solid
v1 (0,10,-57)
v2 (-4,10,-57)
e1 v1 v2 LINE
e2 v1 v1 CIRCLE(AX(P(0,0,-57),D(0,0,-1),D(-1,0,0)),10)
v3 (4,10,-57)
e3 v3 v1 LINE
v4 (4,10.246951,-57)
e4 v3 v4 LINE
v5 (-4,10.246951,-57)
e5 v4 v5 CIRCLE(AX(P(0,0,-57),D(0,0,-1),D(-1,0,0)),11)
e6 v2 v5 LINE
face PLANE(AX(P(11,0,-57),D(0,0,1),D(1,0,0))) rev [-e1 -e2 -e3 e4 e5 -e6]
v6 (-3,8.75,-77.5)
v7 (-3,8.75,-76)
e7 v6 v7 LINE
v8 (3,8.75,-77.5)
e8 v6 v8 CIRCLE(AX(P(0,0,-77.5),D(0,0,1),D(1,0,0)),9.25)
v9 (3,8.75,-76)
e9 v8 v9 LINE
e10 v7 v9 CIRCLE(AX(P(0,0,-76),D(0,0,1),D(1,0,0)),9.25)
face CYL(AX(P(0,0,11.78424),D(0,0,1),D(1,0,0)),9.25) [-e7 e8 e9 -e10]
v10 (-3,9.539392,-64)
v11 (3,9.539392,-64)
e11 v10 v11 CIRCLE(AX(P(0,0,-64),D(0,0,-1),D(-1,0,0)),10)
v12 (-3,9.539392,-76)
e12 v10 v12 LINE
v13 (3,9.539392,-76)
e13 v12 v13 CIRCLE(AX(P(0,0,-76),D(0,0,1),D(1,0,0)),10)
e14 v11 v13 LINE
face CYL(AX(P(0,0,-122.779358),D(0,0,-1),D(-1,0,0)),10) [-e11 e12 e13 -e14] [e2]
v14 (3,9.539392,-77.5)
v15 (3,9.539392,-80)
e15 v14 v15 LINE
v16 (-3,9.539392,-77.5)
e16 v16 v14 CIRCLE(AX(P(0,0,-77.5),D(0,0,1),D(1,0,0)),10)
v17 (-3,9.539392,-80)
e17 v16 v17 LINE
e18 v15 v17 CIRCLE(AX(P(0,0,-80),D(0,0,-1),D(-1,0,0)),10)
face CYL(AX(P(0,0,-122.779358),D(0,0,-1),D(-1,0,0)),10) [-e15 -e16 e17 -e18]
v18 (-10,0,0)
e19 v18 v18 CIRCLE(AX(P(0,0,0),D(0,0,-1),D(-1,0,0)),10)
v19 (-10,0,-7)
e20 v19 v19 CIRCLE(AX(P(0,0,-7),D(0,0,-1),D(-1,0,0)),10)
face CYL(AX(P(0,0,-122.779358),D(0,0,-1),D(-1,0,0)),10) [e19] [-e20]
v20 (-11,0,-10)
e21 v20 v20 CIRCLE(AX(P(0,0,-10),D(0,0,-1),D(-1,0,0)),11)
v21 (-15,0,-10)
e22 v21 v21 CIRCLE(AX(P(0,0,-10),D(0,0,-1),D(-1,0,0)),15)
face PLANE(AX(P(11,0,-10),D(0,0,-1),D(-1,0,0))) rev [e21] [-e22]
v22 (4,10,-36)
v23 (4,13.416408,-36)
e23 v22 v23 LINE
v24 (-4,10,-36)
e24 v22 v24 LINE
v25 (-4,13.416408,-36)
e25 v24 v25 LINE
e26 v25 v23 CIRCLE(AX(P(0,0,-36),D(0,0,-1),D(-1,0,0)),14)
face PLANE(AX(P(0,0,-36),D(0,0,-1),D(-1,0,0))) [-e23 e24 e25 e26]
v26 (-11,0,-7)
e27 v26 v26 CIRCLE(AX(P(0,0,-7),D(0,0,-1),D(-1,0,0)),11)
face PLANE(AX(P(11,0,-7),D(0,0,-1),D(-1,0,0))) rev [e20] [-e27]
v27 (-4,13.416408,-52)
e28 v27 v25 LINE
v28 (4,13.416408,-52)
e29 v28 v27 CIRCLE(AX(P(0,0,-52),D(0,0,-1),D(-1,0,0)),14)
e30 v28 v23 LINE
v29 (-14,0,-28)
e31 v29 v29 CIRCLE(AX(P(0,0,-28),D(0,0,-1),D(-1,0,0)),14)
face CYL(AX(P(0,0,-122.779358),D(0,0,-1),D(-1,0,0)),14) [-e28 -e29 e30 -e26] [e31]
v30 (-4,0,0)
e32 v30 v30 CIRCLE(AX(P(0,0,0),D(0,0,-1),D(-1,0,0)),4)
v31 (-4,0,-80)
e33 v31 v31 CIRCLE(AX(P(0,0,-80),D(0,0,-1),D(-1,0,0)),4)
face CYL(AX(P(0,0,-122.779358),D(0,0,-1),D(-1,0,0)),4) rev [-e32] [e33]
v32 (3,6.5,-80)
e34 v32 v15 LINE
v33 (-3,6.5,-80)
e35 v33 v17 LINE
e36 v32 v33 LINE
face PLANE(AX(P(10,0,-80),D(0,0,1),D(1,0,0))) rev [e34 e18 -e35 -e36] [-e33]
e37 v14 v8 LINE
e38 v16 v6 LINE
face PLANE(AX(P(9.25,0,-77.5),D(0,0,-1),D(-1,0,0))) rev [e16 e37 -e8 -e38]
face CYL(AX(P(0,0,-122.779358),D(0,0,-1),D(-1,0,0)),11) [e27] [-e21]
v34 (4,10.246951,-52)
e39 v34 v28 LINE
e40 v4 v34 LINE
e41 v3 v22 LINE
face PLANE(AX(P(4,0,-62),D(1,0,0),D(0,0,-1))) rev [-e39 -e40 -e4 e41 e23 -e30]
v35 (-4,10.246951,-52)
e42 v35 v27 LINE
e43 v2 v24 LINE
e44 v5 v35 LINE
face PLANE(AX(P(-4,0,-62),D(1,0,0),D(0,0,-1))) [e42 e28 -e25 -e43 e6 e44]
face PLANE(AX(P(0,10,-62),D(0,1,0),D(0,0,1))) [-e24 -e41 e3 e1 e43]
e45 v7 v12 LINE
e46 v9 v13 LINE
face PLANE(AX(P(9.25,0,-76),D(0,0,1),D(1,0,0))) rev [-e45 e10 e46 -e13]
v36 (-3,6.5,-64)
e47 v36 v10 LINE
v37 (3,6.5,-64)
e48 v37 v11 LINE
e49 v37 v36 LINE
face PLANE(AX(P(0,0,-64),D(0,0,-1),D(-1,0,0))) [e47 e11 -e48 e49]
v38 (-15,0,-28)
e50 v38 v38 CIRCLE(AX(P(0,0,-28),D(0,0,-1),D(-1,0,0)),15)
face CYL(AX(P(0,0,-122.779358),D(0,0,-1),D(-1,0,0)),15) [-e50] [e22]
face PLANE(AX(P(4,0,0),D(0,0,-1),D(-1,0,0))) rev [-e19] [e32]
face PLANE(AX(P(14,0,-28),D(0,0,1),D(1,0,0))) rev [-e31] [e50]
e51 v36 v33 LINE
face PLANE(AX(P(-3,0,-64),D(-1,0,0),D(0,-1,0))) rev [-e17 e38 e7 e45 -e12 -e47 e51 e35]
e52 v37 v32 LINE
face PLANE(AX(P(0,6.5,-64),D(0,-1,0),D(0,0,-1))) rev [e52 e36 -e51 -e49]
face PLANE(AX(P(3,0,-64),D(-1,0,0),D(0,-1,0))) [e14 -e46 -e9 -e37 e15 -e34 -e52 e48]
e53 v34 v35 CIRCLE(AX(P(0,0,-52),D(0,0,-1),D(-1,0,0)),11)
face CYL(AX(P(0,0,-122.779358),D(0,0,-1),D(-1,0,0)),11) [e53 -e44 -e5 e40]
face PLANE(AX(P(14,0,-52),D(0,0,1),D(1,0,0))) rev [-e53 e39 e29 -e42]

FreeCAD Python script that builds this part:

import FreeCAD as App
import Part
import Sketcher

V = App.Vector

doc = App.newDocument("Part")
body = doc.addObject("PartDesign::Body", "Body")

# Sketch on XZ plane
sketch1 = doc.addObject("Sketcher::SketchObject", "Sketch")
body.addObject(sketch1)
sketch1.AttachmentSupport = (doc.XZ_Plane, [""])
sketch1.MapMode = "FlatFace"
sketch1.addGeometry(Part.LineSegment(V(4, 0, 0), V(10, 0, 0)), False)
sketch1.addGeometry(Part.LineSegment(V(10, 0, 0), V(10, -7, 0)), False)
sketch1.addGeometry(Part.LineSegment(V(10, -7, 0), V(11, -7, 0)), False)
sketch1.addGeometry(Part.LineSegment(V(11, -7, 0), V(11, -10, 0)), False)
sketch1.addGeometry(Part.LineSegment(V(11, -10, 0), V(15, -10, 0)), False)
sketch1.addGeometry(Part.LineSegment(V(15, -10, 0), V(15, -28, 0)), False)
sketch1.addGeometry(Part.LineSegment(V(15, -28, 0), V(14, -28, 0)), False)
sketch1.addGeometry(Part.LineSegment(V(14, -28, 0), V(14, -52, 0)), False)
sketch1.addGeometry(Part.LineSegment(V(14, -52, 0), V(11, -52, 0)), False)
sketch1.addGeometry(Part.LineSegment(V(11, -52, 0), V(11, -57, 0)), False)
sketch1.addGeometry(Part.LineSegment(V(11, -57, 0), V(10, -57, 0)), False)
sketch1.addGeometry(Part.LineSegment(V(10, -57, 0), V(10, -80, 0)), False)
sketch1.addGeometry(Part.LineSegment(V(10, -80, 0), V(4, -80, 0)), False)
sketch1.addGeometry(Part.LineSegment(V(4, -80, 0), V(4, 0, 0)), False)
sketch1.addConstraint(Sketcher.Constraint("Coincident", 0, 2, 1, 1))
sketch1.addConstraint(Sketcher.Constraint("Coincident", 1, 2, 2, 1))
sketch1.addConstraint(Sketcher.Constraint("Coincident", 2, 2, 3, 1))
sketch1.addConstraint(Sketcher.Constraint("Coincident", 3, 2, 4, 1))
sketch1.addConstraint(Sketcher.Constraint("Coincident", 4, 2, 5, 1))
sketch1.addConstraint(Sketcher.Constraint("Coincident", 5, 2, 6, 1))
sketch1.addConstraint(Sketcher.Constraint("Coincident", 6, 2, 7, 1))
sketch1.addConstraint(Sketcher.Constraint("Coincident", 7, 2, 8, 1))
sketch1.addConstraint(Sketcher.Constraint("Coincident", 8, 2, 9, 1))
sketch1.addConstraint(Sketcher.Constraint("Coincident", 9, 2, 10, 1))
sketch1.addConstraint(Sketcher.Constraint("Coincident", 10, 2, 11, 1))
sketch1.addConstraint(Sketcher.Constraint("Coincident", 11, 2, 12, 1))
sketch1.addConstraint(Sketcher.Constraint("Coincident", 12, 2, 13, 1))
sketch1.addConstraint(Sketcher.Constraint("Coincident", 13, 2, 0, 1))
sketch1.addConstraint(Sketcher.Constraint("Horizontal", 0))
sketch1.addConstraint(Sketcher.Constraint("Vertical", 1))
sketch1.addConstraint(Sketcher.Constraint("Horizontal", 2))
sketch1.addConstraint(Sketcher.Constraint("Vertical", 3))
sketch1.addConstraint(Sketcher.Constraint("Horizontal", 4))
sketch1.addConstraint(Sketcher.Constraint("Vertical", 5))
sketch1.addConstraint(Sketcher.Constraint("Horizontal", 6))
sketch1.addConstraint(Sketcher.Constraint("Vertical", 7))
sketch1.addConstraint(Sketcher.Constraint("Horizontal", 8))
sketch1.addConstraint(Sketcher.Constraint("Vertical", 9))
sketch1.addConstraint(Sketcher.Constraint("Horizontal", 10))
sketch1.addConstraint(Sketcher.Constraint("Vertical", 11))
sketch1.addConstraint(Sketcher.Constraint("Horizontal", 12))
sketch1.addConstraint(Sketcher.Constraint("Vertical", 13))
sketch1.addConstraint(Sketcher.Constraint("PointOnObject", 0, 2, -1))
sketch1.addConstraint(Sketcher.Constraint("Vertical", 3, 2, 8, 2))
sketch1.addConstraint(Sketcher.Constraint("Vertical", 1, 2, 10, 2))
sketch1.addConstraint(Sketcher.Constraint("Equal", 2, 6))
sketch1.addConstraint(Sketcher.Constraint("Equal", 8, 3))
sketch1.addConstraint(Sketcher.Constraint("DistanceX", 0, 1, 0, 2, 6.0))
sketch1.addConstraint(Sketcher.Constraint("DistanceX", 2, 1, 2, 2, 1.0))
sketch1.addConstraint(Sketcher.Constraint("DistanceX", 4, 1, 4, 2, 4.0))
sketch1.addConstraint(Sketcher.Constraint("DistanceY", 1, 2, 1, 1, 7.0))
sketch1.addConstraint(Sketcher.Constraint("DistanceY", 5, 2, 5, 1, 18.0))
sketch1.addConstraint(Sketcher.Constraint("DistanceY", 7, 2, 7, 1, 24.0))
sketch1.addConstraint(Sketcher.Constraint("DistanceY", 9, 2, 9, 1, 5.0))
sketch1.addConstraint(Sketcher.Constraint("DistanceY", 11, 2, 11, 1, 23.0))
sketch1.addConstraint(Sketcher.Constraint("DistanceX", -1, 1, 0, 2, 10.0))
revolution = doc.addObject("PartDesign::Revolution", "Revolution")
body.addObject(revolution)
revolution.Profile = sketch1
revolution.ReferenceAxis = (sketch1, ["V_Axis"])
revolution.Angle = 360

# Sketch on XY plane
sketch2 = doc.addObject("Sketcher::SketchObject", "Sketch001")
body.addObject(sketch2)
sketch2.AttachmentSupport = (doc.XY_Plane, [""])
sketch2.MapMode = "FlatFace"
sketch2.AttachmentOffset = App.Placement(V(0, 0, -52), App.Rotation())
sketch2.addGeometry(Part.LineSegment(V(4, 10, 0), V(-4, 10, 0)), False)
sketch2.addGeometry(Part.LineSegment(V(-4, 10, 0), V(-4, 249, 0)), False)
sketch2.addGeometry(Part.LineSegment(V(-4, 249, 0), V(4, 249, 0)), False)
sketch2.addGeometry(Part.LineSegment(V(4, 249, 0), V(4, 10, 0)), False)
sketch2.addConstraint(Sketcher.Constraint("Coincident", 0, 2, 1, 1))
sketch2.addConstraint(Sketcher.Constraint("Coincident", 1, 2, 2, 1))
sketch2.addConstraint(Sketcher.Constraint("Coincident", 2, 2, 3, 1))
sketch2.addConstraint(Sketcher.Constraint("Coincident", 3, 2, 0, 1))
sketch2.addConstraint(Sketcher.Constraint("Horizontal", 0))
sketch2.addConstraint(Sketcher.Constraint("Vertical", 1))
sketch2.addConstraint(Sketcher.Constraint("Horizontal", 2))
sketch2.addConstraint(Sketcher.Constraint("Vertical", 3))
sketch2.addConstraint(Sketcher.Constraint("DistanceX", 0, 2, 0, 1, 8.0))
sketch2.addConstraint(Sketcher.Constraint("DistanceX", 0, 2, -1, 1, 4.0))
sketch2.addConstraint(Sketcher.Constraint("DistanceY", -1, 1, 0, 2, 10.0))
sketch2.addConstraint(Sketcher.Constraint("DistanceY", 1, 1, 1, 2, 238.515702))
pocket1 = doc.addObject("PartDesign::Pocket", "Pocket")
body.addObject(pocket1)
pocket1.Profile = sketch2
pocket1.Type = "TwoLengths"
pocket1.Length = 10
pocket1.Length2 = 16

# Sketch on XY plane
sketch3 = doc.addObject("Sketcher::SketchObject", "Sketch002")
body.addObject(sketch3)
sketch3.AttachmentSupport = (doc.XY_Plane, [""])
sketch3.MapMode = "FlatFace"
sketch3.AttachmentOffset = App.Placement(V(0, 0, -80), App.Rotation())
sketch3.addGeometry(Part.LineSegment(V(3, 6, 0), V(-3, 6, 0)), False)
sketch3.addGeometry(Part.LineSegment(V(-3, 6, 0), V(-3, 222, 0)), False)
sketch3.addGeometry(Part.LineSegment(V(-3, 222, 0), V(3, 222, 0)), False)
sketch3.addGeometry(Part.LineSegment(V(3, 222, 0), V(3, 6, 0)), False)
sketch3.addConstraint(Sketcher.Constraint("Coincident", 0, 2, 1, 1))
sketch3.addConstraint(Sketcher.Constraint("Coincident", 1, 2, 2, 1))
sketch3.addConstraint(Sketcher.Constraint("Coincident", 2, 2, 3, 1))
sketch3.addConstraint(Sketcher.Constraint("Coincident", 3, 2, 0, 1))
sketch3.addConstraint(Sketcher.Constraint("Horizontal", 0))
sketch3.addConstraint(Sketcher.Constraint("Vertical", 1))
sketch3.addConstraint(Sketcher.Constraint("Horizontal", 2))
sketch3.addConstraint(Sketcher.Constraint("Vertical", 3))
sketch3.addConstraint(Sketcher.Constraint("DistanceX", 0, 2, 0, 1, 6.0))
sketch3.addConstraint(Sketcher.Constraint("DistanceX", 0, 2, -1, 1, 3.0))
sketch3.addConstraint(Sketcher.Constraint("DistanceY", -1, 1, 0, 2, 6.5))
sketch3.addConstraint(Sketcher.Constraint("DistanceY", 1, 1, 1, 2, 215.638799))
pocket2 = doc.addObject("PartDesign::Pocket", "Pocket001")
body.addObject(pocket2)
pocket2.Profile = sketch3
pocket2.Length = 16
pocket2.Reversed = True

# Sketch on XZ plane
sketch4 = doc.addObject("Sketcher::SketchObject", "Sketch003")
body.addObject(sketch4)
sketch4.AttachmentSupport = (doc.XZ_Plane, [""])
sketch4.MapMode = "FlatFace"
sketch4.addGeometry(Part.LineSegment(V(9.2, -77.5, 0), V(9.2, -76, 0)), False)
sketch4.addGeometry(Part.LineSegment(V(9.2, -76, 0), V(10, -76, 0)), False)
sketch4.addGeometry(Part.LineSegment(V(10, -76, 0), V(10, -77.5, 0)), False)
sketch4.addGeometry(Part.LineSegment(V(10, -77.5, 0), V(9.2, -77.5, 0)), False)
sketch4.addConstraint(Sketcher.Constraint("Coincident", 0, 2, 1, 1))
sketch4.addConstraint(Sketcher.Constraint("Coincident", 1, 2, 2, 1))
sketch4.addConstraint(Sketcher.Constraint("Coincident", 2, 2, 3, 1))
sketch4.addConstraint(Sketcher.Constraint("Coincident", 3, 2, 0, 1))
sketch4.addConstraint(Sketcher.Constraint("Vertical", 0))
sketch4.addConstraint(Sketcher.Constraint("Horizontal", 1))
sketch4.addConstraint(Sketcher.Constraint("Vertical", 2))
sketch4.addConstraint(Sketcher.Constraint("Horizontal", 3))
sketch4.addConstraint(Sketcher.Constraint("DistanceY", 0, 1, 0, 2, 1.5))
sketch4.addConstraint(Sketcher.Constraint("DistanceY", 0, 2, -1, 1, 76.0))
sketch4.addConstraint(Sketcher.Constraint("DistanceX", -1, 1, 1, 2, 10.0))
sketch4.addConstraint(Sketcher.Constraint("DistanceX", 1, 1, 1, 2, 0.75))
groove = doc.addObject("PartDesign::Groove", "Groove")
body.addObject(groove)
groove.Profile = sketch4
groove.ReferenceAxis = (sketch4, ["V_Axis"])
groove.Angle = 360

doc.recompute()
